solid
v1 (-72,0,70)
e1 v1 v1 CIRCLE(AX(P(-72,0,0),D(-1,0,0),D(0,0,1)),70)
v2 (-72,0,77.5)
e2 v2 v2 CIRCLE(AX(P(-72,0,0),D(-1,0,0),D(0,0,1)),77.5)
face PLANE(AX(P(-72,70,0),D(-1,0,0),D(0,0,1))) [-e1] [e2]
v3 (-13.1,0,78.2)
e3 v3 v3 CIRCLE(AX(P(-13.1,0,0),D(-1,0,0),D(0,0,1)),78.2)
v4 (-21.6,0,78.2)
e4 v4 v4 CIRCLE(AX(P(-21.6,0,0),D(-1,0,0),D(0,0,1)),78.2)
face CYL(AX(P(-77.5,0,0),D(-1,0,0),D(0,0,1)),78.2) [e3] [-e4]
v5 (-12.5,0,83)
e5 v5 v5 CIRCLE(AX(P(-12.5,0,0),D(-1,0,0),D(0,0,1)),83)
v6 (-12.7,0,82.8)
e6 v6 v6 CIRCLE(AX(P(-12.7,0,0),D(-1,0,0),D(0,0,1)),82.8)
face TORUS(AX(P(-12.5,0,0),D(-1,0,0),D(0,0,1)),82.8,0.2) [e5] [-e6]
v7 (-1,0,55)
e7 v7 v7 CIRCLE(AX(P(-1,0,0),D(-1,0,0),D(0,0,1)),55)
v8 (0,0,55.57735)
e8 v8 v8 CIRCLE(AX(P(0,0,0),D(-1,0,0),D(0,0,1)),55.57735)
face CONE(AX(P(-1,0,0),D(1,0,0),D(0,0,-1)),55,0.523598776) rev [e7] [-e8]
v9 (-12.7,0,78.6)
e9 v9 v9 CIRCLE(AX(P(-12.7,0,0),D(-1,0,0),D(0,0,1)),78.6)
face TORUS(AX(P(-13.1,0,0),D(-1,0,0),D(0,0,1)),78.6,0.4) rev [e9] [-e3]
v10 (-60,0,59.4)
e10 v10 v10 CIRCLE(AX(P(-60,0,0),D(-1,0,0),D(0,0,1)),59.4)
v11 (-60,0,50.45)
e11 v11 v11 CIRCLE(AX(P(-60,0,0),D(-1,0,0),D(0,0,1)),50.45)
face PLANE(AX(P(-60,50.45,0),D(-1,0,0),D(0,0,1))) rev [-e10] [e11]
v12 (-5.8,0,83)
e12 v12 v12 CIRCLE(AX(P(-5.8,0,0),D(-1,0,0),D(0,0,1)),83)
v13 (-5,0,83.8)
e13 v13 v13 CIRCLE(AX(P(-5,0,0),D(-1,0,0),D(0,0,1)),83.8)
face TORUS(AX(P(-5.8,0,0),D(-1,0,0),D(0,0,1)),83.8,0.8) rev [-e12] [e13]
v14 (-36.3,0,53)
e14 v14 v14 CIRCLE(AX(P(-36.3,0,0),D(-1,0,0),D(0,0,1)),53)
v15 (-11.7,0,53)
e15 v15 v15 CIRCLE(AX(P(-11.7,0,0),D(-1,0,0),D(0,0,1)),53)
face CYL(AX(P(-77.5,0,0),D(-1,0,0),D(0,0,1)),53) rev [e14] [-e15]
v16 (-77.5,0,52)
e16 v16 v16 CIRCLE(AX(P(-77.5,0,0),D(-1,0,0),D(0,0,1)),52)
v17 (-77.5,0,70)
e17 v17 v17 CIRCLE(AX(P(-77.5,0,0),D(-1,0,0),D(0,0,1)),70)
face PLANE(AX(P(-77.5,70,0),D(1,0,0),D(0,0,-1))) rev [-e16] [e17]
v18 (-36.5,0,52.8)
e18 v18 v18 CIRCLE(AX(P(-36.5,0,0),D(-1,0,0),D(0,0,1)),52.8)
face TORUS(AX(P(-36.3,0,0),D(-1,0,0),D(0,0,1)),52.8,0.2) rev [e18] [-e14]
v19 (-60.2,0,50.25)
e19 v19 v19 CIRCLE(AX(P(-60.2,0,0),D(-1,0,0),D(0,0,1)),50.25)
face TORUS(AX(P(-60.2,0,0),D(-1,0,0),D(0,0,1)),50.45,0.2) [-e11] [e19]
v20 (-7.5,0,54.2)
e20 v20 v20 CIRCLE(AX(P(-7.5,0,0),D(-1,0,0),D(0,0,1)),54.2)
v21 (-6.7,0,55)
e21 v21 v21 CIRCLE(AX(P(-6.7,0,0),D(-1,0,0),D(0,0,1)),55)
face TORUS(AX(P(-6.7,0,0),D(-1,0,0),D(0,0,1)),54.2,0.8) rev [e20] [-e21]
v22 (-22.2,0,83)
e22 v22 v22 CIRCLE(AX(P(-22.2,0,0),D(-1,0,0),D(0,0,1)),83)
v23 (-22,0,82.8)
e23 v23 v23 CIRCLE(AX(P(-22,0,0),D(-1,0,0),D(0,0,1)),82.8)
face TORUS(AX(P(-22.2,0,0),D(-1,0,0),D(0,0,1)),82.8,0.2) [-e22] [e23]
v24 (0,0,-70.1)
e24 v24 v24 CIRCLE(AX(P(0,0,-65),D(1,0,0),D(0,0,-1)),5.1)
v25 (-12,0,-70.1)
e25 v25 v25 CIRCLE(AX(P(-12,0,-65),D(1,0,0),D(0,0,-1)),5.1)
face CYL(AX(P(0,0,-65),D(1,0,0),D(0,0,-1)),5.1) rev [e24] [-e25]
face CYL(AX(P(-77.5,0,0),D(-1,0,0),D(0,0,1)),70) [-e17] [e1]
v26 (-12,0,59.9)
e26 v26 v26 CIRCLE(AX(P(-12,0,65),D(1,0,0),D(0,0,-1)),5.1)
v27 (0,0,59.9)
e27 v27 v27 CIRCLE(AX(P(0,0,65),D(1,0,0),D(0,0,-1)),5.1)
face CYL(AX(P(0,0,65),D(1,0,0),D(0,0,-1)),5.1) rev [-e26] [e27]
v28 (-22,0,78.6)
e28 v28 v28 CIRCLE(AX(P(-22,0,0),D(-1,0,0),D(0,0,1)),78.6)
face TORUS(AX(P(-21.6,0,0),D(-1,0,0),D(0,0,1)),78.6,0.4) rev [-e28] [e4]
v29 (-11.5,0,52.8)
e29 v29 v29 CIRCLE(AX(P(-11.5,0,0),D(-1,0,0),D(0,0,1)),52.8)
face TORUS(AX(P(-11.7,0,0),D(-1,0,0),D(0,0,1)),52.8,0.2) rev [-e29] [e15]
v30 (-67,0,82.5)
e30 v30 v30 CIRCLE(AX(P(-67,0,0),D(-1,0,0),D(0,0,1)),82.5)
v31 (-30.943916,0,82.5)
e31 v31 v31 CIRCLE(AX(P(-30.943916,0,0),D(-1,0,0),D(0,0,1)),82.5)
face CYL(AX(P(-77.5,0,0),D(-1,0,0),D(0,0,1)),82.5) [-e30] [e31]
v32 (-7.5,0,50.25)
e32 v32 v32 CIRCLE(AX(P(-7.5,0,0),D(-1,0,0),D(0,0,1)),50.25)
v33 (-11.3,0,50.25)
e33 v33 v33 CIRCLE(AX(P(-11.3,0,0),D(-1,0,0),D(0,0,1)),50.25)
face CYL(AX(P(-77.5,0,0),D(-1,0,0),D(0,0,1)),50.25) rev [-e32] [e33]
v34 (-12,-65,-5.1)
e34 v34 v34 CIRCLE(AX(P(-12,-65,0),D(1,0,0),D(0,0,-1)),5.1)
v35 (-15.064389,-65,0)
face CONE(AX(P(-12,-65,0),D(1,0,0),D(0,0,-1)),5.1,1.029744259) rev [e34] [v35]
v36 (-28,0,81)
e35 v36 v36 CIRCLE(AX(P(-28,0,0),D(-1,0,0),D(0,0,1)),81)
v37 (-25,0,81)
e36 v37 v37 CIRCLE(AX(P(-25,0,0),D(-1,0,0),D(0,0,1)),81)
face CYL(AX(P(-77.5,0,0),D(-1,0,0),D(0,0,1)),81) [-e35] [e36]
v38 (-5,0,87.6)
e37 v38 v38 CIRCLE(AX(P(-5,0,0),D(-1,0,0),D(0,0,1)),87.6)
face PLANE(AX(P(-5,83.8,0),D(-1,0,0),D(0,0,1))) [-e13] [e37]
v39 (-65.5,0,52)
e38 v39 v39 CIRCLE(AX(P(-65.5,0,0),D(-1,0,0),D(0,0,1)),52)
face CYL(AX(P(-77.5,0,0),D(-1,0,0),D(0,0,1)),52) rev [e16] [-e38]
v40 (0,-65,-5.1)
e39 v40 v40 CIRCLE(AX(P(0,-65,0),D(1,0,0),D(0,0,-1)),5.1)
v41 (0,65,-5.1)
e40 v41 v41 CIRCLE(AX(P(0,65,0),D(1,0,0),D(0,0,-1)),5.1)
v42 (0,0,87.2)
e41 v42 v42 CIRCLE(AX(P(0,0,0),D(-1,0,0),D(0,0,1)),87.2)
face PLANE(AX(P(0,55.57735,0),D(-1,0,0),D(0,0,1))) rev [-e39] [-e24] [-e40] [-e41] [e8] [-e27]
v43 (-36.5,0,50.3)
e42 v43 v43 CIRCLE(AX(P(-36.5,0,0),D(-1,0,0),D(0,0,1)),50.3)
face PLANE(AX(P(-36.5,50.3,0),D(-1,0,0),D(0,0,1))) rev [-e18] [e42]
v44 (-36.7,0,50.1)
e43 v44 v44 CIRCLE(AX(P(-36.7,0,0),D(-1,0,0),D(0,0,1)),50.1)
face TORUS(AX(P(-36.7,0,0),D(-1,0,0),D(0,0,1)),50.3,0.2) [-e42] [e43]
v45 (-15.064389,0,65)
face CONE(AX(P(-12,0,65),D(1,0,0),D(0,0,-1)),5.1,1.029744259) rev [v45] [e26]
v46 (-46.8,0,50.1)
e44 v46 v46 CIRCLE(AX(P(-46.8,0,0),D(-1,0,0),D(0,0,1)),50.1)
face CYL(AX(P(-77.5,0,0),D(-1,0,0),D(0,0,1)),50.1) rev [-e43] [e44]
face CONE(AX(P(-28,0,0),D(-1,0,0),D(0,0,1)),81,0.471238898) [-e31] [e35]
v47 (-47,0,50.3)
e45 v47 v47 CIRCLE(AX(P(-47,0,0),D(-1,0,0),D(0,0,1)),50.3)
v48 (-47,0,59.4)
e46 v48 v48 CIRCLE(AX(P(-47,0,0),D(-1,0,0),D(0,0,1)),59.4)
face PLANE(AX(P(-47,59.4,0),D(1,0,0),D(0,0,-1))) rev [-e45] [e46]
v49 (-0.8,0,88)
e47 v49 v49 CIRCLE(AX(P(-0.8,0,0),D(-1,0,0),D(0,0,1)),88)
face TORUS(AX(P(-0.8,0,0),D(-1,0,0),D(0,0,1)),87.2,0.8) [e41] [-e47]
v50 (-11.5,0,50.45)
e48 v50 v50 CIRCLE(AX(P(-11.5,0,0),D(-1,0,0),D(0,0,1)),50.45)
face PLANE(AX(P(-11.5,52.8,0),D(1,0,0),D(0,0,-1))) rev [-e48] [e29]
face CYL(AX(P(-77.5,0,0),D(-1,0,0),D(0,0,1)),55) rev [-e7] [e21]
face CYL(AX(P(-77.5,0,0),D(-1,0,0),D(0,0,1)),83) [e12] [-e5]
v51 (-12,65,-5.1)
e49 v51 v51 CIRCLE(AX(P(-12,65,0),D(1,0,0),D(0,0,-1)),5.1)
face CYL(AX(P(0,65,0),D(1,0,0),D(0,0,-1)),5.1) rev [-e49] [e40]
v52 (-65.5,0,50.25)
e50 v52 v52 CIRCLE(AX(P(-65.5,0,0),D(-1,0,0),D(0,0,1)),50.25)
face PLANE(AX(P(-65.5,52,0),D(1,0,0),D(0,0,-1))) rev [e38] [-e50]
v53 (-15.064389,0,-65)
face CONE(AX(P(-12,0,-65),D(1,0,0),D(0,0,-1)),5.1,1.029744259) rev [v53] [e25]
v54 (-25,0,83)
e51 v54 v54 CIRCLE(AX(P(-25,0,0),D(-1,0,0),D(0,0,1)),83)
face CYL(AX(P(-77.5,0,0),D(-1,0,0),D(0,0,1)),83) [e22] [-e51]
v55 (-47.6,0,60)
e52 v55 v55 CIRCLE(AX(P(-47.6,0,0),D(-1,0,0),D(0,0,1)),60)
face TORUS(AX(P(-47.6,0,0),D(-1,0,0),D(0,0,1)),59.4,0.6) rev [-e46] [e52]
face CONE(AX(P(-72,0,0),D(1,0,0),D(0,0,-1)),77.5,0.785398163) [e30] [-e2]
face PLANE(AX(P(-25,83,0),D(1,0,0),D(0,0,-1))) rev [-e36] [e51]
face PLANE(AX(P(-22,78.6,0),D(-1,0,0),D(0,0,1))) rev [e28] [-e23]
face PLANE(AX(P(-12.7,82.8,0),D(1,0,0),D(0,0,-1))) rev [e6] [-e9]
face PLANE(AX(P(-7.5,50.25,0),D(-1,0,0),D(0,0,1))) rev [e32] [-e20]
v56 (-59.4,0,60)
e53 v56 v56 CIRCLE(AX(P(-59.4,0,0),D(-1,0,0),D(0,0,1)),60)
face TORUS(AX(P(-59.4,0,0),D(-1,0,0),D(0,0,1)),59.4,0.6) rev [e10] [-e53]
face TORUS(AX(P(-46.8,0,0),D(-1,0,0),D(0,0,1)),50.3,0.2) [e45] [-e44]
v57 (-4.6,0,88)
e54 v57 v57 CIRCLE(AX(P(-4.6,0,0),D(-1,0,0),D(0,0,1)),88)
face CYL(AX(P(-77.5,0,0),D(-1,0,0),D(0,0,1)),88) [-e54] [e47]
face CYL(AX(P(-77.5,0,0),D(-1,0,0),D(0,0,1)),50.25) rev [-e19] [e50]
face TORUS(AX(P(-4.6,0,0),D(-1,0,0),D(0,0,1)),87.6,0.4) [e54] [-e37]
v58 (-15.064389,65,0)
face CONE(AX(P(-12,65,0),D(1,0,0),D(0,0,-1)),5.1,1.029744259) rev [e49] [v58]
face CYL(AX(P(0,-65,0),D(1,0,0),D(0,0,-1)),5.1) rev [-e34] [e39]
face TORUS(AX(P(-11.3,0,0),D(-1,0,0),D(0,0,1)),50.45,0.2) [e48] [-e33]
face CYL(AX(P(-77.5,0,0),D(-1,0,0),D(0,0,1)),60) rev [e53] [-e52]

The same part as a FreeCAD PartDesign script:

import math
import FreeCAD as App
import Part
import Sketcher
from FreeCAD import Vector
Q = App.Units.Quantity

doc = App.newDocument("Part")
body = doc.addObject("PartDesign::Body", "Body")

sketch1 = body.newObject("Sketcher::SketchObject", "Sketch")
sketch1.AttachmentSupport = (doc.getObject("XY_Plane"), [""])
sketch1.MapMode = "FlatFace"
sketch1.addGeometry([
    Part.LineSegment(Vector(0, 55.58, 0), Vector(0, 87.2, 0)),
    Part.ArcOfCircle(Part.Circle(Vector(-0.8, 87.2, 0), Vector(0, 0, 1), 0.8), math.radians(0), math.radians(90)),
    Part.LineSegment(Vector(-0.8, 88, 0), Vector(-4.6, 88, 0)),
    Part.ArcOfCircle(Part.Circle(Vector(-4.6, 87.6, 0), Vector(0, 0, 1), 0.4), math.radians(90), math.radians(180)),
    Part.LineSegment(Vector(-5, 87.6, 0), Vector(-5, 83.8, 0)),
    Part.ArcOfCircle(Part.Circle(Vector(-5.8, 83.8, 0), Vector(0, 0, 1), 0.8), math.radians(-90), math.radians(0)),
    Part.LineSegment(Vector(-5.8, 83, 0), Vector(-12.5, 83, 0)),
    Part.ArcOfCircle(Part.Circle(Vector(-12.5, 82.8, 0), Vector(0, 0, 1), 0.2), math.radians(90), math.radians(180)),
    Part.LineSegment(Vector(-12.7, 82.8, 0), Vector(-12.7, 78.6, 0)),
    Part.ArcOfCircle(Part.Circle(Vector(-13.1, 78.6, 0), Vector(0, 0, 1), 0.4), math.radians(-90), math.radians(0)),
    Part.LineSegment(Vector(-13.1, 78.2, 0), Vector(-21.6, 78.2, 0)),
    Part.ArcOfCircle(Part.Circle(Vector(-21.6, 78.6, 0), Vector(0, 0, 1), 0.4), math.radians(-180), math.radians(-90)),
    Part.LineSegment(Vector(-22, 78.6, 0), Vector(-22, 82.8, 0)),
    Part.ArcOfCircle(Part.Circle(Vector(-22.2, 82.8, 0), Vector(0, 0, 1), 0.2), math.radians(0), math.radians(90)),
    Part.LineSegment(Vector(-22.2, 83, 0), Vector(-25, 83, 0)),
    Part.LineSegment(Vector(-25, 83, 0), Vector(-25, 81, 0)),
    Part.LineSegment(Vector(-25, 81, 0), Vector(-28, 81, 0)),
    Part.LineSegment(Vector(-28, 81, 0), Vector(-30.94, 82.5, 0)),
    Part.LineSegment(Vector(-30.94, 82.5, 0), Vector(-67, 82.5, 0)),
    Part.LineSegment(Vector(-67, 82.5, 0), Vector(-72, 77.5, 0)),
    Part.LineSegment(Vector(-72, 77.5, 0), Vector(-72, 70, 0)),
    Part.LineSegment(Vector(-72, 70, 0), Vector(-77.5, 70, 0)),
    Part.LineSegment(Vector(-77.5, 70, 0), Vector(-77.5, 52, 0)),
    Part.LineSegment(Vector(-77.5, 52, 0), Vector(-65.5, 52, 0)),
    Part.LineSegment(Vector(-65.5, 52, 0), Vector(-65.5, 50.25, 0)),
    Part.LineSegment(Vector(-65.5, 50.25, 0), Vector(-60.2, 50.25, 0)),
    Part.ArcOfCircle(Part.Circle(Vector(-60.2, 50.45, 0), Vector(0, 0, 1), 0.2), math.radians(-90), math.radians(0)),
    Part.LineSegment(Vector(-60, 50.45, 0), Vector(-60, 59.4, 0)),
    Part.ArcOfCircle(Part.Circle(Vector(-59.4, 59.4, 0), Vector(0, 0, 1), 0.6), math.radians(90), math.radians(180)),
    Part.LineSegment(Vector(-59.4, 60, 0), Vector(-47.6, 60, 0)),
    Part.ArcOfCircle(Part.Circle(Vector(-47.6, 59.4, 0), Vector(0, 0, 1), 0.6), math.radians(0), math.radians(90)),
    Part.LineSegment(Vector(-47, 59.4, 0), Vector(-47, 50.3, 0)),
    Part.ArcOfCircle(Part.Circle(Vector(-46.8, 50.3, 0), Vector(0, 0, 1), 0.2), math.radians(-180), math.radians(-90)),
    Part.LineSegment(Vector(-46.8, 50.1, 0), Vector(-36.7, 50.1, 0)),
    Part.ArcOfCircle(Part.Circle(Vector(-36.7, 50.3, 0), Vector(0, 0, 1), 0.2), math.radians(-90), math.radians(0)),
    Part.LineSegment(Vector(-36.5, 50.3, 0), Vector(-36.5, 52.8, 0)),
    Part.ArcOfCircle(Part.Circle(Vector(-36.3, 52.8, 0), Vector(0, 0, 1), 0.2), math.radians(90), math.radians(180)),
    Part.LineSegment(Vector(-36.3, 53, 0), Vector(-11.7, 53, 0)),
    Part.ArcOfCircle(Part.Circle(Vector(-11.7, 52.8, 0), Vector(0, 0, 1), 0.2), math.radians(0), math.radians(90)),
    Part.LineSegment(Vector(-11.5, 52.8, 0), Vector(-11.5, 50.45, 0)),
    Part.ArcOfCircle(Part.Circle(Vector(-11.3, 50.45, 0), Vector(0, 0, 1), 0.2), math.radians(-180), math.radians(-90)),
    Part.LineSegment(Vector(-11.3, 50.25, 0), Vector(-7.5, 50.25, 0)),
    Part.LineSegment(Vector(-7.5, 50.25, 0), Vector(-7.5, 54.2, 0)),
    Part.ArcOfCircle(Part.Circle(Vector(-6.7, 54.2, 0), Vector(0, 0, 1), 0.8), math.radians(90), math.radians(180)),
    Part.LineSegment(Vector(-6.7, 55, 0), Vector(-1, 55, 0)),
    Part.LineSegment(Vector(-1, 55, 0), Vector(0, 55.58, 0)),
], False)
sketch1.addConstraint([
    Sketcher.Constraint("Tangent", 0, 2, 1, 1),
    Sketcher.Constraint("Tangent", 1, 2, 2, 1),
    Sketcher.Constraint("Tangent", 2, 2, 3, 1),
    Sketcher.Constraint("Tangent", 3, 2, 4, 1),
    Sketcher.Constraint("Tangent", 4, 2, 5, 2),
    Sketcher.Constraint("Tangent", 5, 1, 6, 1),
    Sketcher.Constraint("Tangent", 6, 2, 7, 1),
    Sketcher.Constraint("Tangent", 7, 2, 8, 1),
    Sketcher.Constraint("Tangent", 8, 2, 9, 2),
    Sketcher.Constraint("Tangent", 9, 1, 10, 1),
    Sketcher.Constraint("Tangent", 10, 2, 11, 2),
    Sketcher.Constraint("Tangent", 11, 1, 12, 1),
    Sketcher.Constraint("Tangent", 12, 2, 13, 1),
    Sketcher.Constraint("Tangent", 13, 2, 14, 1),
    Sketcher.Constraint("Coincident", 14, 2, 15, 1),
    Sketcher.Constraint("Coincident", 15, 2, 16, 1),
    Sketcher.Constraint("Coincident", 16, 2, 17, 1),
    Sketcher.Constraint("Coincident", 17, 2, 18, 1),
    Sketcher.Constraint("Coincident", 18, 2, 19, 1),
    Sketcher.Constraint("Coincident", 19, 2, 20, 1),
    Sketcher.Constraint("Coincident", 20, 2, 21, 1),
    Sketcher.Constraint("Coincident", 21, 2, 22, 1),
    Sketcher.Constraint("Coincident", 22, 2, 23, 1),
    Sketcher.Constraint("Coincident", 23, 2, 24, 1),
    Sketcher.Constraint("Coincident", 24, 2, 25, 1),
    Sketcher.Constraint("Tangent", 25, 2, 26, 1),
    Sketcher.Constraint("Tangent", 26, 2, 27, 1),
    Sketcher.Constraint("Tangent", 27, 2, 28, 2),
    Sketcher.Constraint("Tangent", 28, 1, 29, 1),
    Sketcher.Constraint("Tangent", 29, 2, 30, 2),
    Sketcher.Constraint("Tangent", 30, 1, 31, 1),
    Sketcher.Constraint("Tangent", 31, 2, 32, 1),
    Sketcher.Constraint("Tangent", 32, 2, 33, 1),
    Sketcher.Constraint("Tangent", 33, 2, 34, 1),
    Sketcher.Constraint("Tangent", 34, 2, 35, 1),
    Sketcher.Constraint("Tangent", 35, 2, 36, 2),
    Sketcher.Constraint("Tangent", 36, 1, 37, 1),
    Sketcher.Constraint("Tangent", 37, 2, 38, 2),
    Sketcher.Constraint("Tangent", 38, 1, 39, 1),
    Sketcher.Constraint("Tangent", 39, 2, 40, 1),
    Sketcher.Constraint("Tangent", 40, 2, 41, 1),
    Sketcher.Constraint("Coincident", 41, 2, 42, 1),
    Sketcher.Constraint("Tangent", 42, 2, 43, 2),
    Sketcher.Constraint("Tangent", 43, 1, 44, 1),
    Sketcher.Constraint("Coincident", 44, 2, 45, 1),
    Sketcher.Constraint("Coincident", 45, 2, 0, 1),
    Sketcher.Constraint("Vertical", 0),
    Sketcher.Constraint("Horizontal", 2),
    Sketcher.Constraint("Vertical", 4),
    Sketcher.Constraint("Horizontal", 6),
    Sketcher.Constraint("Vertical", 8),
    Sketcher.Constraint("Horizontal", 10),
    Sketcher.Constraint("Vertical", 12),
    Sketcher.Constraint("Horizontal", 14),
    Sketcher.Constraint("Vertical", 15),
    Sketcher.Constraint("Horizontal", 16),
    Sketcher.Constraint("Horizontal", 18),
    Sketcher.Constraint("Vertical", 20),
    Sketcher.Constraint("Horizontal", 21),
    Sketcher.Constraint("Vertical", 22),
    Sketcher.Constraint("Horizontal", 23),
    Sketcher.Constraint("Vertical", 24),
    Sketcher.Constraint("Horizontal", 25),
    Sketcher.Constraint("Vertical", 27),
    Sketcher.Constraint("Horizontal", 29),
    Sketcher.Constraint("Vertical", 31),
    Sketcher.Constraint("Horizontal", 33),
    Sketcher.Constraint("Vertical", 35),
    Sketcher.Constraint("Horizontal", 37),
    Sketcher.Constraint("Vertical", 39),
    Sketcher.Constraint("Horizontal", 41),
    Sketcher.Constraint("Vertical", 42),
    Sketcher.Constraint("Horizontal", 44),
    Sketcher.Constraint("Equal", 1, 5),
    Sketcher.Constraint("Equal", 3, 9),
    Sketcher.Constraint("Equal", 9, 11),
    Sketcher.Constraint("Equal", 7, 13),
    Sketcher.Constraint("Equal", 13, 26),
    Sketcher.Constraint("Equal", 28, 30),
    Sketcher.Constraint("Equal", 26, 32),
    Sketcher.Constraint("Equal", 32, 34),
    Sketcher.Constraint("Equal", 34, 36),
    Sketcher.Constraint("Equal", 36, 38),
    Sketcher.Constraint("Equal", 38, 40),
    Sketcher.Constraint("Equal", 5, 43),
    Sketcher.Constraint("PointOnObject", 0, 2, -2),
    Sketcher.Constraint("Horizontal", 7, 3, 13, 3),
    Sketcher.Constraint("Horizontal", 26, 3, 40, 3),
    Sketcher.Constraint("Equal", 2, 41),
    Sketcher.Constraint("Equal", 41, 4),
    Sketcher.Constraint("Radius", 1, 0.8),
    Sketcher.Constraint("Radius", 3, 0.4),
    Sketcher.Constraint("Radius", 7, 0.2),
    Sketcher.Constraint("Radius", 28, 0.6),
    Sketcher.Constraint("DistanceX", 16, 2, 16, 1, 3.0),
    Sketcher.Constraint("DistanceX", 23, 1, 23, 2, 12.0),
    Sketcher.Constraint("DistanceY", 15, 2, 15, 1, 2.0),
    Sketcher.Constraint("DistanceY", 22, 2, 22, 1, 18.0),
    Sketcher.Constraint("Angle", 17, Q("153 deg")),
    Sketcher.Constraint("Angle", 19, Q("-135 deg")),
    Sketcher.Constraint("Angle", 45, Q("30 deg")),
    Sketcher.Constraint("DistanceX", 2, 2, 2, 1, 3.8),
    Sketcher.Constraint("DistanceX", 6, 2, 6, 1, 6.7),
    Sketcher.Constraint("DistanceX", 10, 2, 10, 1, 8.5),
    Sketcher.Constraint("DistanceX", 14, 2, 14, 1, 2.8),
    Sketcher.Constraint("DistanceX", 21, 2, 21, 1, 5.5),
    Sketcher.Constraint("DistanceX", 25, 1, 25, 2, 5.3),
    Sketcher.Constraint("DistanceX", 29, 1, 29, 2, 11.8),
    Sketcher.Constraint("DistanceX", 33, 1, 33, 2, 10.1),
    Sketcher.Constraint("DistanceX", 37, 1, 37, 2, 24.6),
    Sketcher.Constraint("DistanceX", 44, 1, 44, 2, 5.7),
    Sketcher.Constraint("DistanceY", 8, 2, 8, 1, 4.2),
    Sketcher.Constraint("DistanceY", 20, 2, 20, 1, 7.5),
    Sketcher.Constraint("DistanceY", 31, 2, 31, 1, 9.1),
    Sketcher.Constraint("DistanceY", 35, 1, 35, 2, 2.5),
    Sketcher.Constraint("DistanceY", -1, 1, 1, 2, 88.0),
    Sketcher.Constraint("DistanceX", 18, 2, -1, 1, 67.0),
    Sketcher.Constraint("DistanceX", 19, 2, -1, 1, 72.0),
    Sketcher.Constraint("DistanceY", -1, 1, 20, 2, 70.0),
    Sketcher.Constraint("DistanceY", -1, 1, 28, 1, 60.0),
    Sketcher.Constraint("DistanceY", -1, 1, 43, 1, 55.0),
    Sketcher.Constraint("DistanceY", 24, 2, 24, 1, 1.75),
])
revolution = body.newObject("PartDesign::Revolution", "Revolution")
revolution.Profile = sketch1
revolution.ReferenceAxis = (sketch1, ["H_Axis"])
revolution.Angle = 360

sketch2 = body.newObject("Sketcher::SketchObject", "Sketch001")
sketch2.AttachmentSupport = (doc.getObject("YZ_Plane"), [""])
sketch2.MapMode = "FlatFace"
sketch2.addGeometry([
    Part.Circle(Vector(65, 0, 0), Vector(0, 0, 1), 5),
    Part.Circle(Vector(0, -65, 0), Vector(0, 0, 1), 5),
    Part.Circle(Vector(-65, 0, 0), Vector(0, 0, 1), 5),
    Part.Circle(Vector(0, 65, 0), Vector(0, 0, 1), 5),
], False)
sketch2.addConstraint([
    Sketcher.Constraint("Equal", 0, 1),
    Sketcher.Constraint("Equal", 1, 2),
    Sketcher.Constraint("Equal", 2, 3),
    Sketcher.Constraint("Symmetric", 0, 3, 2, 3, -1, 1),
    Sketcher.Constraint("Symmetric", 1, 3, 3, 3, -1, 1),
    Sketcher.Constraint("PointOnObject", 0, 3, -1),
    Sketcher.Constraint("PointOnObject", 1, 3, -2),
    Sketcher.Constraint("Diameter", 0, 10.2),
    Sketcher.Constraint("DistanceX", -1, 1, 0, 3, 65.0),
    Sketcher.Constraint("DistanceY", 1, 3, -1, 1, 65.0),
])
doc.recompute()
hole = body.newObject("PartDesign::Hole", "Hole")
hole.Profile = sketch2
hole.ThreadType = "None"
hole.Diameter = 10.2
hole.DepthType = "Dimension"
hole.Depth = 12
hole.DrillPoint = "Angled"
hole.DrillPointAngle = 118

doc.recompute()
